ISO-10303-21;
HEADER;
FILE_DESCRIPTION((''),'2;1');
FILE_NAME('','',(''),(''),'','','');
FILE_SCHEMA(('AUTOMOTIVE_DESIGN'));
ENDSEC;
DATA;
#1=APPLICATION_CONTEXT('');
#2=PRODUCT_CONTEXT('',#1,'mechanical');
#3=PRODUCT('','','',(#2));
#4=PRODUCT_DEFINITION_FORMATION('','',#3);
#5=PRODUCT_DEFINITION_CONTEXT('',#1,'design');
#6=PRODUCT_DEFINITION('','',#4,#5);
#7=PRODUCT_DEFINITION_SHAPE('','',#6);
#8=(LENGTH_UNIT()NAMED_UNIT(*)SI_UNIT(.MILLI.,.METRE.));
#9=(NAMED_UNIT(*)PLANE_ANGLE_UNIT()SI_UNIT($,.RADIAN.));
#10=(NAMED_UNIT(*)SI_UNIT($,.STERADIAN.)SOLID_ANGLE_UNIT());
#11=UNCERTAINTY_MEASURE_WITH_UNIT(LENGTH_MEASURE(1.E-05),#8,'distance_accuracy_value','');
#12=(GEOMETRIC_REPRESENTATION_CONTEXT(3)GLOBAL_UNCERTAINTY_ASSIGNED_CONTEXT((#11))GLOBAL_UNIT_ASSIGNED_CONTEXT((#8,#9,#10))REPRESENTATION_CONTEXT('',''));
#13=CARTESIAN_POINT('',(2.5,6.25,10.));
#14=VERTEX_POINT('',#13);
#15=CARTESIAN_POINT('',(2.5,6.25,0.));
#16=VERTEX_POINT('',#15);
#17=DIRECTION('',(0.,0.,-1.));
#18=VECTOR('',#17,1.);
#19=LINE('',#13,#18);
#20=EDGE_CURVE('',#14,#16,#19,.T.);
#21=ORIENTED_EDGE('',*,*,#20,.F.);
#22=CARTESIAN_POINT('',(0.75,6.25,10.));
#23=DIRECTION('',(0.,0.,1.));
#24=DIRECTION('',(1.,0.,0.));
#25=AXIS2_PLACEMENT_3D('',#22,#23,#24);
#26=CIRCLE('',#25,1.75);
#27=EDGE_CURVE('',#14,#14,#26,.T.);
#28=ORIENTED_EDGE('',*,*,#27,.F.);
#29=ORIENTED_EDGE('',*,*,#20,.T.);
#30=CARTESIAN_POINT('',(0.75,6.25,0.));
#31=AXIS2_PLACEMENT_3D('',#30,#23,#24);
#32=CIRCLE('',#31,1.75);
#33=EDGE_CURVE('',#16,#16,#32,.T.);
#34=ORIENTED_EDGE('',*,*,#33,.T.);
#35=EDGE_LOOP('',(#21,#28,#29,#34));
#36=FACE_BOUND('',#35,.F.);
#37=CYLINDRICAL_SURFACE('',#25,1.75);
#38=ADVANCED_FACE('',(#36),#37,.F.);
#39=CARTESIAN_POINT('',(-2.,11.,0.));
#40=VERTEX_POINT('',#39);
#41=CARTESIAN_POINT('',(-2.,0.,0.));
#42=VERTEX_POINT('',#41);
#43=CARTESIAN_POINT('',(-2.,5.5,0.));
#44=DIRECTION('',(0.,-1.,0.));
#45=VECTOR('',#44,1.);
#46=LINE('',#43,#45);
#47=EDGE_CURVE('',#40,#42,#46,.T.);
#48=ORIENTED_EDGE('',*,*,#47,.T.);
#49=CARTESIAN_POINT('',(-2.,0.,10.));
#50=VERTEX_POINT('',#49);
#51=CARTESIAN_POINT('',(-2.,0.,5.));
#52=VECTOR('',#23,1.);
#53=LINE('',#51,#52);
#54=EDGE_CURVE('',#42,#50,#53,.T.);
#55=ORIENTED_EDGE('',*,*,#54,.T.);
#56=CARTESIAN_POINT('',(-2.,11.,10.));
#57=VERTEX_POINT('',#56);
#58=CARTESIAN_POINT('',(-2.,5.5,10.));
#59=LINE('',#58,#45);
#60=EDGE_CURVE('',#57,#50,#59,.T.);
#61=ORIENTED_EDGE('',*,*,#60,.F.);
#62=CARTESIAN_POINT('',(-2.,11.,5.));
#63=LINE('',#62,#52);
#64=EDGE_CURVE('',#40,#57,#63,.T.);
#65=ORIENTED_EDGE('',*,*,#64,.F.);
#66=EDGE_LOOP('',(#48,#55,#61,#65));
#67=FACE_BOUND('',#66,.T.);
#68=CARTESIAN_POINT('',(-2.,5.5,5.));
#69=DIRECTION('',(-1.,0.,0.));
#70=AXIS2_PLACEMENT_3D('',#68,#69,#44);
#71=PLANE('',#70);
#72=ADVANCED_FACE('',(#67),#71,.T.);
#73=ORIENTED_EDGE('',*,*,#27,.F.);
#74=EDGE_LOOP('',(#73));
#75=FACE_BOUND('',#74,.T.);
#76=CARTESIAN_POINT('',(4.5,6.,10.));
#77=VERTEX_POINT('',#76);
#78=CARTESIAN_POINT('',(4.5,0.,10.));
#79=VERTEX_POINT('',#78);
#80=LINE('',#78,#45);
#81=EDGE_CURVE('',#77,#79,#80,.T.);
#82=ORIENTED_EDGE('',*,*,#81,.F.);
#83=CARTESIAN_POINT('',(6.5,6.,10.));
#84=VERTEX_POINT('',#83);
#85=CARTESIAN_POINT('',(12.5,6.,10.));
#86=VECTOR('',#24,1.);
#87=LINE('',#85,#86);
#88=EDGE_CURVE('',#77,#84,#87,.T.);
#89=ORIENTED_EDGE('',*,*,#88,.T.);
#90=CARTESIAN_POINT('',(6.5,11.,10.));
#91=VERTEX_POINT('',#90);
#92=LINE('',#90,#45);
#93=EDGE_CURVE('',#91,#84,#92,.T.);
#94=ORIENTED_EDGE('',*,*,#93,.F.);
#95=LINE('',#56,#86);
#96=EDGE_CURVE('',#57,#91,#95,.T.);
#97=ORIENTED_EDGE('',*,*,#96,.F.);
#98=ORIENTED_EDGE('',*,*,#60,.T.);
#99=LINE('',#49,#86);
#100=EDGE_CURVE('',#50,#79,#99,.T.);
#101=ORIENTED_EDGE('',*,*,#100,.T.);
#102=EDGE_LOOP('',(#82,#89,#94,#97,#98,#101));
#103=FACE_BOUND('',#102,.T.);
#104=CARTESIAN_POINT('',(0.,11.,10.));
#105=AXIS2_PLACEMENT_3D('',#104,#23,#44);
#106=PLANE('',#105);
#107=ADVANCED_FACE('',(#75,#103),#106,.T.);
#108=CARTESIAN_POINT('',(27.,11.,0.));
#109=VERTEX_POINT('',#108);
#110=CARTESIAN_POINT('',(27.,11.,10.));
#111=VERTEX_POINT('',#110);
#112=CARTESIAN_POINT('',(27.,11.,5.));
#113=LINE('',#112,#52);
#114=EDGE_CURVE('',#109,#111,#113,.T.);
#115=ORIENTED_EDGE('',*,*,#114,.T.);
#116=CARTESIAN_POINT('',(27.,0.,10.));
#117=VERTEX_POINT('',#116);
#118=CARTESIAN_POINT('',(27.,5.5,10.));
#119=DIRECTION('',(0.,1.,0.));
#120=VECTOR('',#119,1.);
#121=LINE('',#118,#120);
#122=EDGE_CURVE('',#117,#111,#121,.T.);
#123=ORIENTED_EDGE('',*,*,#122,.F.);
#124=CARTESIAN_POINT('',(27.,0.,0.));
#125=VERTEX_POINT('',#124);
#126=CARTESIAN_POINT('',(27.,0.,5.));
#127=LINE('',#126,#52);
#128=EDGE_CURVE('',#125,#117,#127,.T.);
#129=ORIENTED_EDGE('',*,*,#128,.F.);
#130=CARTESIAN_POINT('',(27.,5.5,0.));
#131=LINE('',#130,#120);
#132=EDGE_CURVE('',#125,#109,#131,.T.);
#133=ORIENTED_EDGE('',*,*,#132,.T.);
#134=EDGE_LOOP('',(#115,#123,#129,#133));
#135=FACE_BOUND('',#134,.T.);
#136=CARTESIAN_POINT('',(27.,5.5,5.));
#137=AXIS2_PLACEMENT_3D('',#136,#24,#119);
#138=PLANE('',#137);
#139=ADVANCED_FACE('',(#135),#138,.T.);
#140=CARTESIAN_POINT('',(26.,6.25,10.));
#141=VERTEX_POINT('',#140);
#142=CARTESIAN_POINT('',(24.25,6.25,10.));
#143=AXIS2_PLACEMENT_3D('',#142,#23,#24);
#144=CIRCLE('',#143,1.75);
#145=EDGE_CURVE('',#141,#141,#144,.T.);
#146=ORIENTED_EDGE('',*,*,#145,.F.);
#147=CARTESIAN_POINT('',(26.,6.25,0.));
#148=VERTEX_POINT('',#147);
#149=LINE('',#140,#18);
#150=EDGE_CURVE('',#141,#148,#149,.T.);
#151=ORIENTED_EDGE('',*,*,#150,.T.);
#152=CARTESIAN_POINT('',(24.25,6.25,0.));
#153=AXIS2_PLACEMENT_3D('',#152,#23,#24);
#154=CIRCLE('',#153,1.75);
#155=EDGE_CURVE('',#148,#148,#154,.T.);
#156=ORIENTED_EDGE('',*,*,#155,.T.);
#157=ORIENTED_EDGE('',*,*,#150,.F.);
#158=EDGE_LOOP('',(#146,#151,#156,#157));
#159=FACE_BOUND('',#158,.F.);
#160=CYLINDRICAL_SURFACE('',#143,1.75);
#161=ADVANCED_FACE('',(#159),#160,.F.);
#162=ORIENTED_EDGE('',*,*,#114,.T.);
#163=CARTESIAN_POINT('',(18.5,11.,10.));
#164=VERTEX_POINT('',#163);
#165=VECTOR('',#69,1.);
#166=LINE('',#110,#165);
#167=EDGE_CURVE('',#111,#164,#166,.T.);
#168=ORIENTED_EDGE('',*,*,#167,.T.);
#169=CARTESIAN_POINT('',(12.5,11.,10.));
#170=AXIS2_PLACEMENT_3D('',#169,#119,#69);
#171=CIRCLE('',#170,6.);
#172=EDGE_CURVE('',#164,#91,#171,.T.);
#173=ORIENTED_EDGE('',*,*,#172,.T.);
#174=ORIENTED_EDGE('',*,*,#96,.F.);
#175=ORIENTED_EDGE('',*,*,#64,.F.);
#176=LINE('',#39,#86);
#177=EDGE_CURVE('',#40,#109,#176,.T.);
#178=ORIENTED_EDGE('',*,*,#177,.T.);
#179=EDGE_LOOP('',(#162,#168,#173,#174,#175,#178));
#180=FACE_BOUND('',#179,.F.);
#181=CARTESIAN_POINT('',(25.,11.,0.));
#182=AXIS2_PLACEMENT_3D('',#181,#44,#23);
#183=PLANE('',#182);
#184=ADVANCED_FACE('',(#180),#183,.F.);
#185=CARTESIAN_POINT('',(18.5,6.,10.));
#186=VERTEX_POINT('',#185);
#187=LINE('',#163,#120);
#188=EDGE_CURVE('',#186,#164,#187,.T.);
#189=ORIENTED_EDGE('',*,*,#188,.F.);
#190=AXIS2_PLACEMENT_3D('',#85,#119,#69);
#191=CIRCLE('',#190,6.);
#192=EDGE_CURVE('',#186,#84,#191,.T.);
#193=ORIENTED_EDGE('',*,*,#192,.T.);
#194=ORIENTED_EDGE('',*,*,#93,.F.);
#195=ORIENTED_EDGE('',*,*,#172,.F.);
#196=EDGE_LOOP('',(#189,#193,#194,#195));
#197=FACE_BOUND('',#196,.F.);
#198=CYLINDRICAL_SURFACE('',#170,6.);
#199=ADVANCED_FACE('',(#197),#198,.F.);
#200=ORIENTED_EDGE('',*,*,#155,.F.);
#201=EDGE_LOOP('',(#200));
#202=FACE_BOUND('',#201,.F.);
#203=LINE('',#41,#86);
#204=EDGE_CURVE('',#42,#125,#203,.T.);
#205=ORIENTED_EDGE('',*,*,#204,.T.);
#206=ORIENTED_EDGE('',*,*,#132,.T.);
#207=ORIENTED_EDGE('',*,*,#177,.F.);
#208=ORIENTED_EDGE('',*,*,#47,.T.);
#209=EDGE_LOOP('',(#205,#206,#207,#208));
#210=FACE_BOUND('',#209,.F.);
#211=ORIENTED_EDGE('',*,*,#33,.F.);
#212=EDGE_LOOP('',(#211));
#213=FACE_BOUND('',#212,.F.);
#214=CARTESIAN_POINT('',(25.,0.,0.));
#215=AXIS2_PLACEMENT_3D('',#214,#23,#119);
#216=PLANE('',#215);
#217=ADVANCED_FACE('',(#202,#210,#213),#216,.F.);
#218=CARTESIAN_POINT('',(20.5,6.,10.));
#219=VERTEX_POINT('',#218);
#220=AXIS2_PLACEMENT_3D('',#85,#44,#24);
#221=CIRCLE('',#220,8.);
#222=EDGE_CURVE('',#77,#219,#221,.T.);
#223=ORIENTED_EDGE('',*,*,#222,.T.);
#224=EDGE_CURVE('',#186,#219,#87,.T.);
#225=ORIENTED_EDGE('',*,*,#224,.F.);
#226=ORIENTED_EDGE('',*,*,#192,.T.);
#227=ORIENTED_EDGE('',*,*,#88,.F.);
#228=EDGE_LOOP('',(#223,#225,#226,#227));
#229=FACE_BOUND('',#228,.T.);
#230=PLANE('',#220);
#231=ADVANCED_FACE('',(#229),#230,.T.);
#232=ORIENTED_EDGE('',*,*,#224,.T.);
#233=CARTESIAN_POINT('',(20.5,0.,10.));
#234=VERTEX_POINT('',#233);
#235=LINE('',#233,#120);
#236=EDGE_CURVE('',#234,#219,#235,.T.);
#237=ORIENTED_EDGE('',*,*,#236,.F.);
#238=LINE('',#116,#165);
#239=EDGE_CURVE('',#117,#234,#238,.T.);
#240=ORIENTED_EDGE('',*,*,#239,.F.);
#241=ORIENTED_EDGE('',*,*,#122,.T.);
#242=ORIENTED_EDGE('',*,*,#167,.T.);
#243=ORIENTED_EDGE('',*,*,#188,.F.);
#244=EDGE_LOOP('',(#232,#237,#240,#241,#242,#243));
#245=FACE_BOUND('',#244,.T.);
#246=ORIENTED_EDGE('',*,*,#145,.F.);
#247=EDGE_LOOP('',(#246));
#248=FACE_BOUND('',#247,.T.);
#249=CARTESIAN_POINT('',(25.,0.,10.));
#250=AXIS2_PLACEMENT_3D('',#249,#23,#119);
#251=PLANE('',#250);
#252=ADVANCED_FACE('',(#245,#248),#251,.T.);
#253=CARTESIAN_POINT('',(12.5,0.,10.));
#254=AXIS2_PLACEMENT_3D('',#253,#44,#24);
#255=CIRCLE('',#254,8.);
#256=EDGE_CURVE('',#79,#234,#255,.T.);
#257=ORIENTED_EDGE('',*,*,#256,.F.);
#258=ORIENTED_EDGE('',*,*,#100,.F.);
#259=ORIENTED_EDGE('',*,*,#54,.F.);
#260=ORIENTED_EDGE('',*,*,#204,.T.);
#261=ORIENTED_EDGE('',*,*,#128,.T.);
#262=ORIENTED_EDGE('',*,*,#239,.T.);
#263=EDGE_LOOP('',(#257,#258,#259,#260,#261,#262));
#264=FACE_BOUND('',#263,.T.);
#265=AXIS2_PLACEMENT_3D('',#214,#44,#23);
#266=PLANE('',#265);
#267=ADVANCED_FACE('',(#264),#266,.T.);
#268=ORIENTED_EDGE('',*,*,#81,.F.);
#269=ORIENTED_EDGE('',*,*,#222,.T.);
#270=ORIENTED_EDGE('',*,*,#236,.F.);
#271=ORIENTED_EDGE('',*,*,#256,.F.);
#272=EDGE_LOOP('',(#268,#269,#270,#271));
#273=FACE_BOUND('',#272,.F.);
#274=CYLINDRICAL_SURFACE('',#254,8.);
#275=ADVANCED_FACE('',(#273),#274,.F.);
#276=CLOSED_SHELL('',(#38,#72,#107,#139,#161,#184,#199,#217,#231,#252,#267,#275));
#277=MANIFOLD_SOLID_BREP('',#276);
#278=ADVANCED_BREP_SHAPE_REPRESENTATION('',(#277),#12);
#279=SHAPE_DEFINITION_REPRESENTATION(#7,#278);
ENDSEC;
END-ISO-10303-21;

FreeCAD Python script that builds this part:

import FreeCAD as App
import Part
import Sketcher
from FreeCAD import Vector


def add_polygon(sketch, points):
    """Adds a closed chain of lines whose ends are joined by coincident constraints."""
    first, n = sketch.GeometryCount, len(points)
    for a, b in zip(points, points[1:] + points[:1]):
        sketch.addGeometry(Part.LineSegment(App.Vector(*a, 0), App.Vector(*b, 0)), False)
    for i in range(n):
        sketch.addConstraint(Sketcher.Constraint("Coincident", first + i, 2, first + (i + 1) % n, 1))

doc = App.newDocument("Part")
body = doc.addObject("PartDesign::Body", "Body")

sketch1 = doc.addObject("Sketcher::SketchObject", "Sketch")
body.addObject(sketch1)
sketch1.AttachmentSupport = (doc.XY_Plane, [""])
sketch1.MapMode = "FlatFace"
add_polygon(sketch1, [(0, 11), (0, 0), (25, 0), (25, 11)])
sketch1.addConstraint([
    Sketcher.Constraint("Vertical", 0),
    Sketcher.Constraint("Horizontal", 1),
    Sketcher.Constraint("Vertical", 2),
    Sketcher.Constraint("Horizontal", 3),
    Sketcher.Constraint("Coincident", 0, 2, -1, 1),
    Sketcher.Constraint("DistanceX", 1, 1, 1, 2, 25.0),
    Sketcher.Constraint("DistanceY", 0, 2, 0, 1, 11.0),
])
pad1 = doc.addObject("PartDesign::Pad", "Pad")
body.addObject(pad1)
pad1.Profile = sketch1
pad1.Length = 10

sketch2 = doc.addObject("Sketcher::SketchObject", "Sketch001")
body.addObject(sketch2)
sketch2.AttachmentSupport = (doc.XZ_Plane, [""])
sketch2.MapMode = "FlatFace"
sketch2.addGeometry(Part.Circle(Vector(12, 10, 0), Vector(0, 0, 1), 8), False)
sketch2.addConstraint([
    Sketcher.Constraint("Diameter", 0, 16.0),
    Sketcher.Constraint("DistanceY", -1, 1, 0, 3, 10.0),
    Sketcher.Constraint("DistanceX", -1, 1, 0, 3, 12.5),
])
pocket1 = doc.addObject("PartDesign::Pocket", "Pocket")
body.addObject(pocket1)
pocket1.Profile = sketch2
pocket1.Length = 6

sketch3 = doc.addObject("Sketcher::SketchObject", "Sketch002")
body.addObject(sketch3)
sketch3.AttachmentSupport = (doc.XZ_Plane, [""])
sketch3.MapMode = "FlatFace"
sketch3.AttachmentOffset = App.Placement(Vector(0, 0, -11), App.Rotation())
sketch3.addGeometry(Part.Circle(Vector(12, 10, 0), Vector(0, 0, 1), 6), False)
sketch3.addConstraint([
    Sketcher.Constraint("Diameter", 0, 12.0),
    Sketcher.Constraint("DistanceY", -1, 1, 0, 3, 10.0),
    Sketcher.Constraint("DistanceX", -1, 1, 0, 3, 12.5),
])
pocket2 = doc.addObject("PartDesign::Pocket", "Pocket001")
body.addObject(pocket2)
pocket2.Profile = sketch3
pocket2.Length = 6
pocket2.Reversed = True

sketch4 = doc.addObject("Sketcher::SketchObject", "Sketch003")
body.addObject(sketch4)
sketch4.AttachmentSupport = (doc.YZ_Plane, [""])
sketch4.MapMode = "FlatFace"
add_polygon(sketch4, [(11, 10), (11, 0), (0, 0), (0, 10)])
sketch4.addConstraint([
    Sketcher.Constraint("Vertical", 0),
    Sketcher.Constraint("Horizontal", 1),
    Sketcher.Constraint("Vertical", 2),
    Sketcher.Constraint("Horizontal", 3),
    Sketcher.Constraint("Coincident", 1, 2, -1, 1),
    Sketcher.Constraint("DistanceX", 1, 2, 1, 1, 11.0),
    Sketcher.Constraint("DistanceY", 0, 2, 0, 1, 10.0),
])
pad2 = doc.addObject("PartDesign::Pad", "Pad001")
body.addObject(pad2)
pad2.Profile = sketch4
pad2.Length = 2
pad2.Reversed = True

sketch5 = doc.addObject("Sketcher::SketchObject", "Sketch004")
body.addObject(sketch5)
sketch5.AttachmentSupport = (doc.YZ_Plane, [""])
sketch5.MapMode = "FlatFace"
sketch5.AttachmentOffset = App.Placement(Vector(0, 0, 25), App.Rotation())
add_polygon(sketch5, [(0, 10), (0, 0), (11, 0), (11, 10)])
sketch5.addConstraint([
    Sketcher.Constraint("Vertical", 0),
    Sketcher.Constraint("Horizontal", 1),
    Sketcher.Constraint("Vertical", 2),
    Sketcher.Constraint("Horizontal", 3),
    Sketcher.Constraint("Coincident", 0, 2, -1, 1),
    Sketcher.Constraint("DistanceX", 1, 1, 1, 2, 11.0),
    Sketcher.Constraint("DistanceY", 0, 2, 0, 1, 10.0),
])
pad3 = doc.addObject("PartDesign::Pad", "Pad002")
body.addObject(pad3)
pad3.Profile = sketch5
pad3.Length = 2

sketch6 = doc.addObject("Sketcher::SketchObject", "Sketch005")
body.addObject(sketch6)
sketch6.AttachmentSupport = (doc.XY_Plane, [""])
sketch6.MapMode = "FlatFace"
sketch6.AttachmentOffset = App.Placement(Vector(0, 0, 10), App.Rotation())
sketch6.addGeometry([
    Part.Circle(Vector(0.8, 6.2, 0), Vector(0, 0, 1), 1.8),
    Part.Circle(Vector(24.2, 6.2, 0), Vector(0, 0, 1), 1.8),
], False)
sketch6.addConstraint([
    Sketcher.Constraint("Equal", 0, 1),
    Sketcher.Constraint("Horizontal", 0, 3, 1, 3),
    Sketcher.Constraint("Diameter", 0, 3.5),
    Sketcher.Constraint("DistanceX", 0, 3, 1, 3, 23.5),
    Sketcher.Constraint("DistanceX", -1, 1, 0, 3, 0.75),
    Sketcher.Constraint("DistanceY", -1, 1, 0, 3, 6.25),
])
pocket3 = doc.addObject("PartDesign::Pocket", "Pocket002")
body.addObject(pocket3)
pocket3.Profile = sketch6
pocket3.Length = 25

doc.recompute()
